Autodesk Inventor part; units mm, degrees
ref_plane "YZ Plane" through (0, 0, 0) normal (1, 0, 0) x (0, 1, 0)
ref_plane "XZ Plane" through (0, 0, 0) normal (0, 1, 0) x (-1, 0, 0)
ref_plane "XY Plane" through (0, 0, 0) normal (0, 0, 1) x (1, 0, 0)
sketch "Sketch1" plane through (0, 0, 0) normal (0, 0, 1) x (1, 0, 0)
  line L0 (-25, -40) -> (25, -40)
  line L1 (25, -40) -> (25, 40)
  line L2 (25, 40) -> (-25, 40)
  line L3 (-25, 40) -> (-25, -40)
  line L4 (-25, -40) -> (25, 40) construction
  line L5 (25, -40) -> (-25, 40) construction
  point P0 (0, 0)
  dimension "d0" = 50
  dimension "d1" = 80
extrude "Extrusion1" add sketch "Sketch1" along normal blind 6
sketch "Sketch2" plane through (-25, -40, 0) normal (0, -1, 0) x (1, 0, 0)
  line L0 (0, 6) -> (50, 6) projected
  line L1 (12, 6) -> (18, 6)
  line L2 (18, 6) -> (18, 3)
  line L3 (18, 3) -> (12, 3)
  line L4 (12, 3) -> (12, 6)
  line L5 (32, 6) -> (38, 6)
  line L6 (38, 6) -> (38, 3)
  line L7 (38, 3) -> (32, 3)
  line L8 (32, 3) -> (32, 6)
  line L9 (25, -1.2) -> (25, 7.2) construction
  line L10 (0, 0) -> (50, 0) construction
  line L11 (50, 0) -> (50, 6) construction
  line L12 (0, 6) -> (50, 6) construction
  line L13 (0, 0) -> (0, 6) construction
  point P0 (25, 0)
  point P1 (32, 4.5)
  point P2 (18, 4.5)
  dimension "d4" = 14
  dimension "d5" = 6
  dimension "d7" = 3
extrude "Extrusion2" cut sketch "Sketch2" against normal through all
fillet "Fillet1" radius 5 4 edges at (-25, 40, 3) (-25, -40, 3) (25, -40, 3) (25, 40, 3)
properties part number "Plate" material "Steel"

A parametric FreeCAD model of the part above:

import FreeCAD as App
import Part
import Sketcher

V = App.Vector


def edges_at(feature, points):
    """Names of the edges that pass closest to the given points."""
    edges = feature.Shape.Edges
    near = lambda p: min(range(len(edges)), key=lambda i: edges[i].distToShape(Part.Vertex(*p))[0])
    return sorted({f"Edge{near(p) + 1}" for p in points})


def add_polygon(sketch, points):
    """Adds a closed chain of lines whose ends are joined by coincident constraints."""
    first, n = sketch.GeometryCount, len(points)
    for a, b in zip(points, points[1:] + points[:1]):
        sketch.addGeometry(Part.LineSegment(App.Vector(*a, 0), App.Vector(*b, 0)), False)
    for i in range(n):
        sketch.addConstraint(Sketcher.Constraint("Coincident", first + i, 2, first + (i + 1) % n, 1))

doc = App.newDocument("Part")
body = doc.addObject("PartDesign::Body", "Body")

sketch1 = doc.addObject("Sketcher::SketchObject", "Sketch")
body.addObject(sketch1)
sketch1.AttachmentSupport = (doc.XY_Plane, [""])
sketch1.MapMode = "FlatFace"
add_polygon(sketch1, [(-25, 40), (-25, -40), (25, -40), (25, 40)])
sketch1.addConstraint(Sketcher.Constraint("Vertical", 0))
sketch1.addConstraint(Sketcher.Constraint("Horizontal", 1))
sketch1.addConstraint(Sketcher.Constraint("Vertical", 2))
sketch1.addConstraint(Sketcher.Constraint("Horizontal", 3))
sketch1.addConstraint(Sketcher.Constraint("Symmetric", 0, 2, 2, 2, -1, 1))
sketch1.addConstraint(Sketcher.Constraint("DistanceX", 1, 1, 1, 2, 50.0))
sketch1.addConstraint(Sketcher.Constraint("DistanceY", 0, 2, 0, 1, 80.0))
pad1 = doc.addObject("PartDesign::Pad", "Pad")
body.addObject(pad1)
pad1.Profile = sketch1
pad1.Length = 6

sketch2 = doc.addObject("Sketcher::SketchObject", "Sketch001")
body.addObject(sketch2)
sketch2.AttachmentSupport = (doc.XZ_Plane, [""])
sketch2.MapMode = "FlatFace"
sketch2.AttachmentOffset = App.Placement(V(0, 0, 40), App.Rotation())
add_polygon(sketch2, [(13, 6), (7, 6), (7, 3), (13, 3)])
add_polygon(sketch2, [(-7, 6), (-13, 6), (-13, 3), (-7, 3)])
sketch2.addConstraint(Sketcher.Constraint("Horizontal", 0))
sketch2.addConstraint(Sketcher.Constraint("Vertical", 1))
sketch2.addConstraint(Sketcher.Constraint("Horizontal", 2))
sketch2.addConstraint(Sketcher.Constraint("Vertical", 3))
sketch2.addConstraint(Sketcher.Constraint("Horizontal", 4))
sketch2.addConstraint(Sketcher.Constraint("Vertical", 5))
sketch2.addConstraint(Sketcher.Constraint("Horizontal", 6))
sketch2.addConstraint(Sketcher.Constraint("Vertical", 7))
sketch2.addConstraint(Sketcher.Constraint("Symmetric", 3, 2, 4, 2, -2))
sketch2.addConstraint(Sketcher.Constraint("Symmetric", 1, 2, 6, 2, -2))
sketch2.addConstraint(Sketcher.Constraint("DistanceX", 0, 2, 0, 1, 6.0))
sketch2.addConstraint(Sketcher.Constraint("DistanceY", 1, 2, 1, 1, 3.0))
sketch2.addConstraint(Sketcher.Constraint("DistanceY", -1, 1, 0, 2, 6.0))
sketch2.addConstraint(Sketcher.Constraint("DistanceX", 6, 2, 1, 2, 14.0))
pocket1 = doc.addObject("PartDesign::Pocket", "Pocket")
body.addObject(pocket1)
pocket1.Profile = sketch2
pocket1.Type = "ThroughAll"
doc.recompute()

fillet = doc.addObject("PartDesign::Fillet", "Fillet")
body.addObject(fillet)
fillet.Base = (pocket1, edges_at(pocket1, [
    (-25, 40, 3),
    (-25, -40, 3),
    (25, -40, 3),
    (25, 40, 3),
]))
fillet.Radius = 5

doc.recompute()
